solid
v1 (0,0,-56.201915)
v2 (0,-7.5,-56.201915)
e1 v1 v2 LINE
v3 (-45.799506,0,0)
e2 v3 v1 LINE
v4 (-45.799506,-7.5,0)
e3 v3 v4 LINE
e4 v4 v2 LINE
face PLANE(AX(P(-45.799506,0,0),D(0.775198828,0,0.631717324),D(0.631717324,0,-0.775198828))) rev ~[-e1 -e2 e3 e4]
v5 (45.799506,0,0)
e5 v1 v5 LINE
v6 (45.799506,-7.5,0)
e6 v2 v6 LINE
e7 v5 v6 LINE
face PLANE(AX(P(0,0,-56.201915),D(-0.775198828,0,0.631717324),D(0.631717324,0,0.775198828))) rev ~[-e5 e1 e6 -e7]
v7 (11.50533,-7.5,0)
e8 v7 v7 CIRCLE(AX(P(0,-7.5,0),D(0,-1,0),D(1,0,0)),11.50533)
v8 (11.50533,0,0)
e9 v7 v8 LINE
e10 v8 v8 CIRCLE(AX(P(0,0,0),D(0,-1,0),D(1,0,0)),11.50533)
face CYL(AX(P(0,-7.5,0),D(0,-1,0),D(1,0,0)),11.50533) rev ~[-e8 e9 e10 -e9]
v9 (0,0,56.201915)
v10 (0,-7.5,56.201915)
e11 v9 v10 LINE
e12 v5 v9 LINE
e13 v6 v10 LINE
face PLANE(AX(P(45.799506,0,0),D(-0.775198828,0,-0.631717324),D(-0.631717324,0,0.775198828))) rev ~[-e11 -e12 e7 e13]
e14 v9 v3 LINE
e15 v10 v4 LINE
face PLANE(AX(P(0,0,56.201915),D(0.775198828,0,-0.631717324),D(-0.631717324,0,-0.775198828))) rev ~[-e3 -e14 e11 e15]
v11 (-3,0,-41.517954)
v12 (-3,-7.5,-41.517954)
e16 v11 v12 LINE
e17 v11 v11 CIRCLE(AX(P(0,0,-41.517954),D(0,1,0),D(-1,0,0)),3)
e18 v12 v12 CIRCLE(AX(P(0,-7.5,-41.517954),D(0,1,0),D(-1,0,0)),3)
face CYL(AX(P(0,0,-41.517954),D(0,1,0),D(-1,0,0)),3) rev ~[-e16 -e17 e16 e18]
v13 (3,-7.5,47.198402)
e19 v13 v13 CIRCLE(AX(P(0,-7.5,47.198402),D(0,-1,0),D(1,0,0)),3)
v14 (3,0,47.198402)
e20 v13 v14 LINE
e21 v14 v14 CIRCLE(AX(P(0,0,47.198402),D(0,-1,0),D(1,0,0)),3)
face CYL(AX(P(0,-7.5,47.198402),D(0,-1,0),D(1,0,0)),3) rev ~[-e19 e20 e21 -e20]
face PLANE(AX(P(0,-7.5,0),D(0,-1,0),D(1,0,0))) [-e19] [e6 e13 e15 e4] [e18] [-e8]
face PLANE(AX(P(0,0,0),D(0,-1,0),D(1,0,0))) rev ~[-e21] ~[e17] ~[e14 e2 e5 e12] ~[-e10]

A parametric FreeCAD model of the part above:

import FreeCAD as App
import Part
import Sketcher

V = App.Vector
Q = App.Units.Quantity

doc = App.newDocument("Part")
body = doc.addObject("PartDesign::Body", "Body")

sketch1 = doc.addObject("Sketcher::SketchObject", "Sketch")
body.addObject(sketch1)
sketch1.AttachmentSupport = (doc.XZ_Plane, [""])
sketch1.MapMode = "FlatFace"
sketch1.addGeometry([
    Part.LineSegment(V(46, 0, 0), V(0, 56, 0)),
    Part.LineSegment(V(0, 56, 0), V(-46, 0, 0)),
    Part.LineSegment(V(-46, 0, 0), V(0, -56, 0)),
    Part.LineSegment(V(0, -56, 0), V(46, 0, 0)),
], False)
sketch1.addConstraint([
    Sketcher.Constraint("Coincident", 0, 2, 1, 1),
    Sketcher.Constraint("Coincident", 1, 2, 2, 1),
    Sketcher.Constraint("Coincident", 2, 2, 3, 1),
    Sketcher.Constraint("Coincident", 3, 2, 0, 1),
    Sketcher.Constraint("Symmetric", 0, 2, 2, 2, -1, 1),
    Sketcher.Constraint("Symmetric", 1, 2, 3, 2, -1, 1),
    Sketcher.Constraint("PointOnObject", 0, 2, -2),
    Sketcher.Constraint("PointOnObject", 1, 2, -1),
    Sketcher.Constraint("Distance", 0, Q("72.5 mm")),
    Sketcher.Constraint("DistanceY", 2, 2, 0, 2, Q("112.40383 mm")),
])
pad1 = doc.addObject("PartDesign::Pad", "Pad")
body.addObject(pad1)
pad1.Profile = sketch1
pad1.Length = 7.5

sketch2 = doc.addObject("Sketcher::SketchObject", "Sketch001")
body.addObject(sketch2)
sketch2.AttachmentSupport = (doc.XZ_Plane, [""])
sketch2.MapMode = "FlatFace"
sketch2.AttachmentOffset = App.Placement(V(0, 0, 7.5), App.Rotation())
sketch2.addGeometry(Part.Circle(V(0, 0, 0), V(0, 0, 1), 12), False)
sketch2.addConstraint([
    Sketcher.Constraint("Coincident", 0, 3, -1, 1),
    Sketcher.Constraint("Diameter", 0, Q("23.01066 mm")),
])
pocket1 = doc.addObject("PartDesign::Pocket", "Pocket")
body.addObject(pocket1)
pocket1.Profile = sketch2
pocket1.Length = 25

sketch3 = doc.addObject("Sketcher::SketchObject", "Sketch002")
body.addObject(sketch3)
sketch3.AttachmentSupport = (doc.XZ_Plane, [""])
sketch3.MapMode = "FlatFace"
sketch3.AttachmentOffset = App.Placement(V(0, 0, 7.5), App.Rotation())
sketch3.addGeometry(Part.Circle(V(0, 47.2, 0), V(0, 0, 1), 3), False)
sketch3.addConstraint([
    Sketcher.Constraint("PointOnObject", 0, 3, -2),
    Sketcher.Constraint("Diameter", 0, Q("6 mm")),
    Sketcher.Constraint("DistanceY", -1, 1, 0, 3, Q("47.198402 mm")),
])
pocket2 = doc.addObject("PartDesign::Pocket", "Pocket001")
body.addObject(pocket2)
pocket2.Profile = sketch3
pocket2.Length = 25

sketch4 = doc.addObject("Sketcher::SketchObject", "Sketch003")
body.addObject(sketch4)
sketch4.AttachmentSupport = (doc.XZ_Plane, [""])
sketch4.MapMode = "FlatFace"
sketch4.addGeometry(Part.Circle(V(0, -41.5, 0), V(0, 0, 1), 3), False)
sketch4.addConstraint([
    Sketcher.Constraint("PointOnObject", 0, 3, -2),
    Sketcher.Constraint("Diameter", 0, Q("6 mm")),
    Sketcher.Constraint("DistanceY", 0, 3, -1, 1, Q("41.517954 mm")),
])
pocket3 = doc.addObject("PartDesign::Pocket", "Pocket002")
body.addObject(pocket3)
pocket3.Profile = sketch4
pocket3.Length = 25
pocket3.Reversed = True

doc.recompute()
